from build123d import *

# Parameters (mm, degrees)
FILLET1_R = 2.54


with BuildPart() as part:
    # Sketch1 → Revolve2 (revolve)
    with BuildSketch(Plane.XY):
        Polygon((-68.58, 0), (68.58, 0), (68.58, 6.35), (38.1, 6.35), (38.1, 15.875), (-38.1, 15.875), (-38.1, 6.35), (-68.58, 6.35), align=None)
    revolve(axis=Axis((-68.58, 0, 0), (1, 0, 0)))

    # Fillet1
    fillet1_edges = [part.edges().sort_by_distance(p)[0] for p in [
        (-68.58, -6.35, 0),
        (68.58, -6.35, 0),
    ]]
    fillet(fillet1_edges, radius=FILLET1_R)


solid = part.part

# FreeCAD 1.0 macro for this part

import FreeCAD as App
import Part
import Sketcher
from FreeCAD import Vector
Q = App.Units.Quantity


def edges_at(feature, points):
    """Names of the edges that pass closest to the given points."""
    edges = feature.Shape.Edges
    near = lambda p: min(range(len(edges)), key=lambda i: edges[i].distToShape(Part.Vertex(*p))[0])
    return sorted({f"Edge{near(p) + 1}" for p in points})


def add_polygon(sketch, points):
    """Adds a closed chain of lines whose ends are joined by coincident constraints."""
    first, n = sketch.GeometryCount, len(points)
    for a, b in zip(points, points[1:] + points[:1]):
        sketch.addGeometry(Part.LineSegment(App.Vector(*a, 0), App.Vector(*b, 0)), False)
    for i in range(n):
        sketch.addConstraint(Sketcher.Constraint("Coincident", first + i, 2, first + (i + 1) % n, 1))

doc = App.newDocument("Part")
body = doc.addObject("PartDesign::Body", "Body")

# Sketch on XY plane
sketch1 = body.newObject("Sketcher::SketchObject", "Sketch")
sketch1.AttachmentSupport = (doc.getObject("XY_Plane"), [""])
sketch1.MapMode = "FlatFace"
add_polygon(sketch1, [(-68.58, 0), (68.58, 0), (68.58, 6.35), (38.1, 6.35), (38.1, 15.875), (-38.1, 15.875), (-38.1, 6.35), (-68.58, 6.35)])  # lines 0-7
sketch1.addConstraint(Sketcher.Constraint("Horizontal", 0))
sketch1.addConstraint(Sketcher.Constraint("Vertical", 1))
sketch1.addConstraint(Sketcher.Constraint("Horizontal", 2))
sketch1.addConstraint(Sketcher.Constraint("Vertical", 3))
sketch1.addConstraint(Sketcher.Constraint("Horizontal", 4))
sketch1.addConstraint(Sketcher.Constraint("Vertical", 5))
sketch1.addConstraint(Sketcher.Constraint("Horizontal", 6))
sketch1.addConstraint(Sketcher.Constraint("Vertical", 7))
sketch1.addConstraint(Sketcher.Constraint("Symmetric", 0, 2, 7, 2, -1, 1))
sketch1.addConstraint(Sketcher.Constraint("Symmetric", 2, 2, 5, 2, -2))
sketch1.addConstraint(Sketcher.Constraint("DistanceX", 4, 2, 4, 1, Q("3 in")))
sketch1.addConstraint(Sketcher.Constraint("DistanceX", 0, 1, 0, 2, Q("5.4 in")))
sketch1.addConstraint(Sketcher.Constraint("DistanceY", 1, 1, 1, 2, Q("0.25 in")))
sketch1.addConstraint(Sketcher.Constraint("DistanceY", 3, 1, 3, 2, Q("0.375 in")))
revolution = body.newObject("PartDesign::Revolution", "Revolution")
revolution.Profile = sketch1
revolution.ReferenceAxis = (sketch1, ["H_Axis"])
revolution.Angle = 360
doc.recompute()

fillet = body.newObject("PartDesign::Fillet", "Fillet")
fillet.Base = (revolution, edges_at(revolution, [(-68.58, -6.35, 0), (68.58, -6.35, 0)]))
fillet.Radius = Q("0.1 in")

doc.recompute()
